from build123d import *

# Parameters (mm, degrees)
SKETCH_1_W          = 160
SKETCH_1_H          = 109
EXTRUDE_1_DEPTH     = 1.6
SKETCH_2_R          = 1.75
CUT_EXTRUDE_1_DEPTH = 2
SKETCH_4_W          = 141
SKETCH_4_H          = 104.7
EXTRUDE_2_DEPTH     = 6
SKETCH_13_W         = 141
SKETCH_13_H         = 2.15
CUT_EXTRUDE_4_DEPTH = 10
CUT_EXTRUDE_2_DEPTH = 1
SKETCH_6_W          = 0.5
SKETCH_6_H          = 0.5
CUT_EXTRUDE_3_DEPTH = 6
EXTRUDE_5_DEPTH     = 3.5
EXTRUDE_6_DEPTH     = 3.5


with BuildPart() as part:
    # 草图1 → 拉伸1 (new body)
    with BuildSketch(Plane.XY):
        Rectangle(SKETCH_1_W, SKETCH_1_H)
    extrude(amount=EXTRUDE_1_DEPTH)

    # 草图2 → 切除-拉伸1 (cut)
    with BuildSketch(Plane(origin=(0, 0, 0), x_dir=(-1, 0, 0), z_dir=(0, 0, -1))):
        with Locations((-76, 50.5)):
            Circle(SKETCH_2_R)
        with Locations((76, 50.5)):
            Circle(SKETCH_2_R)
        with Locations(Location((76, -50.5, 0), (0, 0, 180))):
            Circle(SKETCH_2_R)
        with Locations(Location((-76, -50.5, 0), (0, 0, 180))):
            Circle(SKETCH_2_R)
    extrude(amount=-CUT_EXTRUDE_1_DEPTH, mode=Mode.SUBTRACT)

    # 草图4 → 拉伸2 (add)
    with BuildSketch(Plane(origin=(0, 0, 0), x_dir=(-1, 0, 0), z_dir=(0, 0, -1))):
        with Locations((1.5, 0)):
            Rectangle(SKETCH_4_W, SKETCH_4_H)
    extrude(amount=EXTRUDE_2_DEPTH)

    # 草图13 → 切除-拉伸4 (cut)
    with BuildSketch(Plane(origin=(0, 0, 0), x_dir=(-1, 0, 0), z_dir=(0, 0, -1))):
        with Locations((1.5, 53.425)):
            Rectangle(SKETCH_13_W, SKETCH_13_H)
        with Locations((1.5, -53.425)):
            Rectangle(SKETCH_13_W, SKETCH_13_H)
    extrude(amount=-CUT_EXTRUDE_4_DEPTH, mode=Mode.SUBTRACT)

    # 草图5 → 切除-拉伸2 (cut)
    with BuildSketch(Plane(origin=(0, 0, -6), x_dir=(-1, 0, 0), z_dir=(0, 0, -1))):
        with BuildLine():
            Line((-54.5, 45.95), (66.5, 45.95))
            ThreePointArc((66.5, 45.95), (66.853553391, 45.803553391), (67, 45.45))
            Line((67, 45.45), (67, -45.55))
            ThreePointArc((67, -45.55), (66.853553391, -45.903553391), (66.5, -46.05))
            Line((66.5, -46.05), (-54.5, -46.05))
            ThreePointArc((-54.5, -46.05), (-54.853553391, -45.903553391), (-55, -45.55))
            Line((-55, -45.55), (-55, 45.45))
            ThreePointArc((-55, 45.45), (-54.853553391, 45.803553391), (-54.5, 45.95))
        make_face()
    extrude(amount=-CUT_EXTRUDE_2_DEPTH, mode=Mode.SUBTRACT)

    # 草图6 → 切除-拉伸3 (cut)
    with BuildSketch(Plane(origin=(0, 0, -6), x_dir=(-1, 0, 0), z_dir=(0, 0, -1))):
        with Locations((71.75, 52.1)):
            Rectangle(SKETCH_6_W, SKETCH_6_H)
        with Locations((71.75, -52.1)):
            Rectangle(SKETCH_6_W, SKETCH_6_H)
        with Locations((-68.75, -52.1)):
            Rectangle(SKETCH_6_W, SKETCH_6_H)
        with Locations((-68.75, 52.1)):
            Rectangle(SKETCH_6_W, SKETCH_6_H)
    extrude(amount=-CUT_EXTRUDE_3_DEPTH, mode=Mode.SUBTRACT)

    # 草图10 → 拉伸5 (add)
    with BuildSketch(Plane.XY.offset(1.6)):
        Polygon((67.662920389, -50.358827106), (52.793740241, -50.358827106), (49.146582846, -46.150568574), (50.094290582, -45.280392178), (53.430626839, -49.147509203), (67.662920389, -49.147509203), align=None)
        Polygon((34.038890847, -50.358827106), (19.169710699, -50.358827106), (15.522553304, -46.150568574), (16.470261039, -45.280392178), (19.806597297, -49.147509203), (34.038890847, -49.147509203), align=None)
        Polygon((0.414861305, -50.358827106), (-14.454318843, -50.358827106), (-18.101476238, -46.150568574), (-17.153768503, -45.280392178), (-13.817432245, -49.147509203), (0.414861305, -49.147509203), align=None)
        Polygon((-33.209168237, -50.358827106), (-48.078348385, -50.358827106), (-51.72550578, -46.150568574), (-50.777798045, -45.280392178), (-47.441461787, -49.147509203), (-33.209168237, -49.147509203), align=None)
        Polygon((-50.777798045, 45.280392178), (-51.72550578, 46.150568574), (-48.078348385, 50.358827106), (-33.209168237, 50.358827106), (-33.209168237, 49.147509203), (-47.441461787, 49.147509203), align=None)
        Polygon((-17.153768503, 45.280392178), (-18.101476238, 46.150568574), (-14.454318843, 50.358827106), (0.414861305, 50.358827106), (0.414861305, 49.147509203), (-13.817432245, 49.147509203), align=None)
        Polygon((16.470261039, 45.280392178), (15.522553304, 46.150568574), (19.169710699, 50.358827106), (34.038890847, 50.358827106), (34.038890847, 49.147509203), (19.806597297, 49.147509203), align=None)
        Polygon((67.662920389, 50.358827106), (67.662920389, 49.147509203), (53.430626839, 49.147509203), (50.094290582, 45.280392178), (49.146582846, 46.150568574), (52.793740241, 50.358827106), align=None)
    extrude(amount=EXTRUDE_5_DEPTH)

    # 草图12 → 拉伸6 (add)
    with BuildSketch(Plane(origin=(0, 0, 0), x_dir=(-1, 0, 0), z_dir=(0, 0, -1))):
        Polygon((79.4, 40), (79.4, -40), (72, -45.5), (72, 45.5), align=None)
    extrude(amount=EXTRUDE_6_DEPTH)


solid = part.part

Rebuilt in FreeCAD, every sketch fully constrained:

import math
import FreeCAD as App
import Part
import Sketcher

V = App.Vector


def add_polygon(sketch, points):
    """Adds a closed chain of lines whose ends are joined by coincident constraints."""
    first, n = sketch.GeometryCount, len(points)
    for a, b in zip(points, points[1:] + points[:1]):
        sketch.addGeometry(Part.LineSegment(App.Vector(*a, 0), App.Vector(*b, 0)), False)
    for i in range(n):
        sketch.addConstraint(Sketcher.Constraint("Coincident", first + i, 2, first + (i + 1) % n, 1))

doc = App.newDocument("Part")
body = doc.addObject("PartDesign::Body", "Body")

# Sketch on XY plane
sketch1 = body.newObject("Sketcher::SketchObject", "Sketch")
sketch1.AttachmentSupport = (doc.getObject("XY_Plane"), [""])
sketch1.MapMode = "FlatFace"
add_polygon(sketch1, [(-80, 54), (-80, -54), (80, -54), (80, 54)])  # lines 0-3
sketch1.addConstraint(Sketcher.Constraint("Vertical", 0))
sketch1.addConstraint(Sketcher.Constraint("Horizontal", 1))
sketch1.addConstraint(Sketcher.Constraint("Vertical", 2))
sketch1.addConstraint(Sketcher.Constraint("Horizontal", 3))
sketch1.addConstraint(Sketcher.Constraint("Symmetric", 0, 2, 2, 2, -1, 1))
sketch1.addConstraint(Sketcher.Constraint("DistanceX", 1, 1, 1, 2, 160.0))
sketch1.addConstraint(Sketcher.Constraint("DistanceY", 0, 2, 0, 1, 109.0))
pad1 = body.newObject("PartDesign::Pad", "Pad")
pad1.Profile = sketch1
pad1.Length = 1.6

# Sketch on XY plane
sketch2 = body.newObject("Sketcher::SketchObject", "Sketch001")
sketch2.AttachmentSupport = (doc.getObject("XY_Plane"), [""])
sketch2.MapMode = "FlatFace"
sketch2.addGeometry(Part.Circle(V(76, 50.5, 0), V(0, 0, 1), 1.8), False)
sketch2.addGeometry(Part.Circle(V(-76, 50.5, 0), V(0, 0, 1), 1.8), False)
sketch2.addGeometry(Part.Circle(V(-76, -50.5, 0), V(0, 0, 1), 1.8), False)
sketch2.addGeometry(Part.Circle(V(76, -50.5, 0), V(0, 0, 1), 1.8), False)
sketch2.addConstraint(Sketcher.Constraint("Equal", 0, 1))
sketch2.addConstraint(Sketcher.Constraint("Equal", 1, 2))
sketch2.addConstraint(Sketcher.Constraint("Equal", 2, 3))
sketch2.addConstraint(Sketcher.Constraint("Symmetric", 0, 3, 2, 3, -1, 1))
sketch2.addConstraint(Sketcher.Constraint("Symmetric", 1, 3, 3, 3, -1, 1))
sketch2.addConstraint(Sketcher.Constraint("Symmetric", 0, 3, 1, 3, -2))
sketch2.addConstraint(Sketcher.Constraint("Diameter", 0, 3.5))
sketch2.addConstraint(Sketcher.Constraint("DistanceX", -1, 1, 0, 3, 76.0))
sketch2.addConstraint(Sketcher.Constraint("DistanceY", 2, 3, 1, 3, 101.0))
pocket1 = body.newObject("PartDesign::Pocket", "Pocket")
pocket1.Profile = sketch2
pocket1.Length = 2
pocket1.Reversed = True

# Sketch on XY plane
sketch3 = body.newObject("Sketcher::SketchObject", "Sketch002")
sketch3.AttachmentSupport = (doc.getObject("XY_Plane"), [""])
sketch3.MapMode = "FlatFace"
add_polygon(sketch3, [(69, 52), (69, -52), (-72, -52), (-72, 52)])  # lines 0-3
sketch3.addConstraint(Sketcher.Constraint("Vertical", 0))
sketch3.addConstraint(Sketcher.Constraint("Horizontal", 1))
sketch3.addConstraint(Sketcher.Constraint("Vertical", 2))
sketch3.addConstraint(Sketcher.Constraint("Horizontal", 3))
sketch3.addConstraint(Sketcher.Constraint("DistanceX", 1, 2, 1, 1, 141.0))
sketch3.addConstraint(Sketcher.Constraint("DistanceY", 0, 2, 0, 1, 104.7))
sketch3.addConstraint(Sketcher.Constraint("DistanceX", -1, 1, 0, 2, 69.0))
sketch3.addConstraint(Sketcher.Constraint("DistanceY", 0, 2, -1, 1, 52.35))
pad2 = body.newObject("PartDesign::Pad", "Pad001")
pad2.Profile = sketch3
pad2.Length = 6
pad2.Reversed = True

# Sketch on XY plane
sketch4 = body.newObject("Sketcher::SketchObject", "Sketch003")
sketch4.AttachmentSupport = (doc.getObject("XY_Plane"), [""])
sketch4.MapMode = "FlatFace"
add_polygon(sketch4, [(69, 54.5), (69, 52.4), (-72, 52.4), (-72, 54.5)])  # lines 0-3
add_polygon(sketch4, [(69, -52.4), (69, -54.5), (-72, -54.5), (-72, -52.4)])  # lines 4-7
sketch4.addConstraint(Sketcher.Constraint("Vertical", 0))
sketch4.addConstraint(Sketcher.Constraint("Horizontal", 1))
sketch4.addConstraint(Sketcher.Constraint("Vertical", 2))
sketch4.addConstraint(Sketcher.Constraint("Horizontal", 3))
sketch4.addConstraint(Sketcher.Constraint("Vertical", 4))
sketch4.addConstraint(Sketcher.Constraint("Horizontal", 5))
sketch4.addConstraint(Sketcher.Constraint("Vertical", 6))
sketch4.addConstraint(Sketcher.Constraint("Horizontal", 7))
sketch4.addConstraint(Sketcher.Constraint("Symmetric", 3, 2, 4, 2, -1))
sketch4.addConstraint(Sketcher.Constraint("Symmetric", 1, 2, 6, 2, -1))
sketch4.addConstraint(Sketcher.Constraint("DistanceX", 1, 2, 1, 1, 141.0))
sketch4.addConstraint(Sketcher.Constraint("DistanceX", -1, 1, 0, 2, 69.0))
sketch4.addConstraint(Sketcher.Constraint("DistanceY", 4, 2, 3, 2, 109.0))
sketch4.addConstraint(Sketcher.Constraint("DistanceY", 0, 2, 0, 1, 2.15))
pocket2 = body.newObject("PartDesign::Pocket", "Pocket001")
pocket2.Profile = sketch4
pocket2.Length = 10
pocket2.Reversed = True

# Sketch on XY plane
sketch5 = body.newObject("Sketcher::SketchObject", "Sketch004")
sketch5.AttachmentSupport = (doc.getObject("XY_Plane"), [""])
sketch5.MapMode = "FlatFace"
sketch5.AttachmentOffset = App.Placement(V(0, 0, -6), App.Rotation())
sketch5.addGeometry(Part.LineSegment(V(-66.5, 45.95, 0), V(54.5, 45.95, 0)), False)
sketch5.addGeometry(Part.ArcOfCircle(Part.Circle(V(54.5, 45.45, 0), V(0, 0, 1), 0.5), math.radians(0), math.radians(90)), False)
sketch5.addGeometry(Part.LineSegment(V(55, 45.45, 0), V(55, -45.55, 0)), False)
sketch5.addGeometry(Part.ArcOfCircle(Part.Circle(V(54.5, -45.55, 0), V(0, 0, 1), 0.5), math.radians(-90), math.radians(0)), False)
sketch5.addGeometry(Part.LineSegment(V(54.5, -46.05, 0), V(-66.5, -46.05, 0)), False)
sketch5.addGeometry(Part.ArcOfCircle(Part.Circle(V(-66.5, -45.55, 0), V(0, 0, 1), 0.5), math.radians(180), math.radians(270)), False)
sketch5.addGeometry(Part.LineSegment(V(-67, -45.55, 0), V(-67, 45.45, 0)), False)
sketch5.addGeometry(Part.ArcOfCircle(Part.Circle(V(-66.5, 45.45, 0), V(0, 0, 1), 0.5), math.radians(90), math.radians(180)), False)
sketch5.addConstraint(Sketcher.Constraint("Tangent", 0, 2, 1, 2))
sketch5.addConstraint(Sketcher.Constraint("Tangent", 1, 1, 2, 1))
sketch5.addConstraint(Sketcher.Constraint("Tangent", 2, 2, 3, 2))
sketch5.addConstraint(Sketcher.Constraint("Tangent", 3, 1, 4, 1))
sketch5.addConstraint(Sketcher.Constraint("Tangent", 4, 2, 5, 2))
sketch5.addConstraint(Sketcher.Constraint("Tangent", 5, 1, 6, 1))
sketch5.addConstraint(Sketcher.Constraint("Tangent", 6, 2, 7, 2))
sketch5.addConstraint(Sketcher.Constraint("Tangent", 7, 1, 0, 1))
sketch5.addConstraint(Sketcher.Constraint("Horizontal", 0))
sketch5.addConstraint(Sketcher.Constraint("Vertical", 2))
sketch5.addConstraint(Sketcher.Constraint("Horizontal", 4))
sketch5.addConstraint(Sketcher.Constraint("Vertical", 6))
sketch5.addConstraint(Sketcher.Constraint("Equal", 1, 3))
sketch5.addConstraint(Sketcher.Constraint("Equal", 3, 5))
sketch5.addConstraint(Sketcher.Constraint("Equal", 5, 7))
sketch5.addConstraint(Sketcher.Constraint("Radius", 1, 0.5))
sketch5.addConstraint(Sketcher.Constraint("DistanceX", 0, 1, 0, 2, 121.0))
sketch5.addConstraint(Sketcher.Constraint("DistanceY", 2, 2, 2, 1, 91.0))
sketch5.addConstraint(Sketcher.Constraint("DistanceX", -1, 1, 1, 1, 55.0))
sketch5.addConstraint(Sketcher.Constraint("DistanceY", -1, 1, 1, 3, 45.45))
pocket3 = body.newObject("PartDesign::Pocket", "Pocket002")
pocket3.Profile = sketch5
pocket3.Length = 1
pocket3.Reversed = True

# Sketch on XY plane
sketch6 = body.newObject("Sketcher::SketchObject", "Sketch005")
sketch6.AttachmentSupport = (doc.getObject("XY_Plane"), [""])
sketch6.MapMode = "FlatFace"
sketch6.AttachmentOffset = App.Placement(V(0, 0, -6), App.Rotation())
add_polygon(sketch6, [(-71.5, 52.4), (-71.5, 51.9), (-72, 51.9), (-72, 52.4)])  # lines 0-3
add_polygon(sketch6, [(-71.5, -51.9), (-71.5, -52.4), (-72, -52.4), (-72, -51.9)])  # lines 4-7
add_polygon(sketch6, [(69, -51.9), (69, -52.4), (68.5, -52.4), (68.5, -51.9)])  # lines 8-11
add_polygon(sketch6, [(69, 52.4), (69, 51.9), (68.5, 51.9), (68.5, 52.4)])  # lines 12-15
sketch6.addConstraint(Sketcher.Constraint("Vertical", 0))
sketch6.addConstraint(Sketcher.Constraint("Horizontal", 1))
sketch6.addConstraint(Sketcher.Constraint("Vertical", 2))
sketch6.addConstraint(Sketcher.Constraint("Horizontal", 3))
sketch6.addConstraint(Sketcher.Constraint("Vertical", 4))
sketch6.addConstraint(Sketcher.Constraint("Horizontal", 5))
sketch6.addConstraint(Sketcher.Constraint("Vertical", 6))
sketch6.addConstraint(Sketcher.Constraint("Horizontal", 7))
sketch6.addConstraint(Sketcher.Constraint("Vertical", 8))
sketch6.addConstraint(Sketcher.Constraint("Horizontal", 9))
sketch6.addConstraint(Sketcher.Constraint("Vertical", 10))
sketch6.addConstraint(Sketcher.Constraint("Horizontal", 11))
sketch6.addConstraint(Sketcher.Constraint("Vertical", 12))
sketch6.addConstraint(Sketcher.Constraint("Horizontal", 13))
sketch6.addConstraint(Sketcher.Constraint("Vertical", 14))
sketch6.addConstraint(Sketcher.Constraint("Horizontal", 15))
sketch6.addConstraint(Sketcher.Constraint("Symmetric", 3, 2, 4, 2, -1))
sketch6.addConstraint(Sketcher.Constraint("Symmetric", 1, 2, 6, 2, -1))
sketch6.addConstraint(Sketcher.Constraint("Symmetric", 11, 2, 12, 2, -1))
sketch6.addConstraint(Sketcher.Constraint("Symmetric", 9, 2, 14, 2, -1))
sketch6.addConstraint(Sketcher.Constraint("Horizontal", 5, 2, 8, 2))
sketch6.addConstraint(Sketcher.Constraint("Horizontal", 7, 2, 10, 2))
sketch6.addConstraint(Sketcher.Constraint("Equal", 7, 9))
sketch6.addConstraint(Sketcher.Constraint("Equal", 15, 0))
sketch6.addConstraint(Sketcher.Constraint("DistanceX", 1, 2, 1, 1, 0.5))
sketch6.addConstraint(Sketcher.Constraint("DistanceX", 1, 2, -1, 1, 72.0))
sketch6.addConstraint(Sketcher.Constraint("DistanceX", -1, 1, 8, 2, 69.0))
sketch6.addConstraint(Sketcher.Constraint("DistanceY", 4, 2, 0, 2, 104.2))
pocket4 = body.newObject("PartDesign::Pocket", "Pocket003")
pocket4.Profile = sketch6
pocket4.Length = 6
pocket4.Reversed = True

# Sketch on XY plane
sketch7 = body.newObject("Sketcher::SketchObject", "Sketch006")
sketch7.AttachmentSupport = (doc.getObject("XY_Plane"), [""])
sketch7.MapMode = "FlatFace"
sketch7.AttachmentOffset = App.Placement(V(0, 0, 1.6), App.Rotation())
add_polygon(sketch7, [(52.8, -50.4), (67.7, -50.4), (67.7, -49.1), (53.4, -49.1), (50.1, -45.3), (49.1, -46.2)])  # lines 0-5
add_polygon(sketch7, [(19.2, -50.4), (34, -50.4), (34, -49.1), (19.8, -49.1), (16.5, -45.3), (15.5, -46.2)])  # lines 6-11
add_polygon(sketch7, [(-14.5, -50.4), (0.4, -50.4), (0.4, -49.1), (-13.8, -49.1), (-17.2, -45.3), (-18.1, -46.2)])  # lines 12-17
add_polygon(sketch7, [(-48.1, -50.4), (-33.2, -50.4), (-33.2, -49.1), (-47.4, -49.1), (-50.8, -45.3), (-51.7, -46.2)])  # lines 18-23
add_polygon(sketch7, [(-51.7, 46.2), (-50.8, 45.3), (-47.4, 49.1), (-33.2, 49.1), (-33.2, 50.4), (-48.1, 50.4)])  # lines 24-29
add_polygon(sketch7, [(-18.1, 46.2), (-17.2, 45.3), (-13.8, 49.1), (0.4, 49.1), (0.4, 50.4), (-14.5, 50.4)])  # lines 30-35
add_polygon(sketch7, [(15.5, 46.2), (16.5, 45.3), (19.8, 49.1), (34, 49.1), (34, 50.4), (19.2, 50.4)])  # lines 36-41
add_polygon(sketch7, [(67.7, 49.1), (67.7, 50.4), (52.8, 50.4), (49.1, 46.2), (50.1, 45.3), (53.4, 49.1)])  # lines 42-47
sketch7.addConstraint(Sketcher.Constraint("Horizontal", 0))
sketch7.addConstraint(Sketcher.Constraint("Vertical", 1))
sketch7.addConstraint(Sketcher.Constraint("Horizontal", 2))
sketch7.addConstraint(Sketcher.Constraint("Horizontal", 6))
sketch7.addConstraint(Sketcher.Constraint("Vertical", 7))
sketch7.addConstraint(Sketcher.Constraint("Horizontal", 8))
sketch7.addConstraint(Sketcher.Constraint("Horizontal", 12))
sketch7.addConstraint(Sketcher.Constraint("Vertical", 13))
sketch7.addConstraint(Sketcher.Constraint("Horizontal", 14))
sketch7.addConstraint(Sketcher.Constraint("Horizontal", 18))
sketch7.addConstraint(Sketcher.Constraint("Vertical", 19))
sketch7.addConstraint(Sketcher.Constraint("Horizontal", 20))
sketch7.addConstraint(Sketcher.Constraint("Horizontal", 26))
sketch7.addConstraint(Sketcher.Constraint("Vertical", 27))
sketch7.addConstraint(Sketcher.Constraint("Horizontal", 28))
sketch7.addConstraint(Sketcher.Constraint("Horizontal", 32))
sketch7.addConstraint(Sketcher.Constraint("Vertical", 33))
sketch7.addConstraint(Sketcher.Constraint("Horizontal", 34))
sketch7.addConstraint(Sketcher.Constraint("Horizontal", 38))
sketch7.addConstraint(Sketcher.Constraint("Vertical", 39))
sketch7.addConstraint(Sketcher.Constraint("Horizontal", 40))
sketch7.addConstraint(Sketcher.Constraint("Vertical", 42))
sketch7.addConstraint(Sketcher.Constraint("Horizontal", 43))
sketch7.addConstraint(Sketcher.Constraint("Horizontal", 47))
sketch7.addConstraint(Sketcher.Constraint("Symmetric", 21, 2, 24, 2, -1))
sketch7.addConstraint(Sketcher.Constraint("Symmetric", 20, 2, 25, 2, -1))
sketch7.addConstraint(Sketcher.Constraint("Symmetric", 18, 2, 27, 2, -1))
sketch7.addConstraint(Sketcher.Constraint("Symmetric", 22, 2, 29, 2, -1))
sketch7.addConstraint(Sketcher.Constraint("Symmetric", 15, 2, 30, 2, -1))
sketch7.addConstraint(Sketcher.Constraint("Symmetric", 14, 2, 31, 2, -1))
sketch7.addConstraint(Sketcher.Constraint("Symmetric", 12, 2, 33, 2, -1))
sketch7.addConstraint(Sketcher.Constraint("Symmetric", 16, 2, 35, 2, -1))
sketch7.addConstraint(Sketcher.Constraint("Symmetric", 9, 2, 36, 2, -1))
sketch7.addConstraint(Sketcher.Constraint("Symmetric", 8, 2, 37, 2, -1))
sketch7.addConstraint(Sketcher.Constraint("Symmetric", 6, 2, 39, 2, -1))
sketch7.addConstraint(Sketcher.Constraint("Symmetric", 10, 2, 41, 2, -1))
sketch7.addConstraint(Sketcher.Constraint("Symmetric", 0, 2, 42, 2, -1))
sketch7.addConstraint(Sketcher.Constraint("Symmetric", 4, 2, 44, 2, -1))
sketch7.addConstraint(Sketcher.Constraint("Symmetric", 3, 2, 45, 2, -1))
sketch7.addConstraint(Sketcher.Constraint("Symmetric", 2, 2, 46, 2, -1))
sketch7.addConstraint(Sketcher.Constraint("Parallel", 3, 9))
sketch7.addConstraint(Sketcher.Constraint("Parallel", 4, 10))
sketch7.addConstraint(Sketcher.Constraint("Parallel", 5, 11))
sketch7.addConstraint(Sketcher.Constraint("Parallel", 9, 15))
sketch7.addConstraint(Sketcher.Constraint("Parallel", 10, 16))
sketch7.addConstraint(Sketcher.Constraint("Parallel", 11, 17))
sketch7.addConstraint(Sketcher.Constraint("Parallel", 15, 21))
sketch7.addConstraint(Sketcher.Constraint("Parallel", 16, 22))
sketch7.addConstraint(Sketcher.Constraint("Parallel", 17, 23))
sketch7.addConstraint(Sketcher.Constraint("Parallel", 29, 35))
sketch7.addConstraint(Sketcher.Constraint("Parallel", 35, 41))
sketch7.addConstraint(Sketcher.Constraint("Parallel", 41, 44))
sketch7.addConstraint(Sketcher.Constraint("Horizontal", 5, 2, 6, 2))
sketch7.addConstraint(Sketcher.Constraint("Horizontal", 2, 2, 7, 2))
sketch7.addConstraint(Sketcher.Constraint("Horizontal", 3, 2, 9, 2))
sketch7.addConstraint(Sketcher.Constraint("Horizontal", 4, 2, 10, 2))
sketch7.addConstraint(Sketcher.Constraint("Horizontal", 11, 2, 12, 2))
sketch7.addConstraint(Sketcher.Constraint("Horizontal", 8, 2, 13, 2))
sketch7.addConstraint(Sketcher.Constraint("Horizontal", 9, 2, 15, 2))
sketch7.addConstraint(Sketcher.Constraint("Horizontal", 10, 2, 16, 2))
sketch7.addConstraint(Sketcher.Constraint("Horizontal", 17, 2, 18, 2))
sketch7.addConstraint(Sketcher.Constraint("Horizontal", 14, 2, 19, 2))
sketch7.addConstraint(Sketcher.Constraint("Horizontal", 15, 2, 21, 2))
sketch7.addConstraint(Sketcher.Constraint("Horizontal", 16, 2, 22, 2))
sketch7.addConstraint(Sketcher.Constraint("Vertical", 23, 2, 28, 2))
sketch7.addConstraint(Sketcher.Constraint("Equal", 0, 6))
sketch7.addConstraint(Sketcher.Constraint("Equal", 6, 12))
sketch7.addConstraint(Sketcher.Constraint("Equal", 12, 18))
sketch7.addConstraint(Sketcher.Constraint("DistanceX", 0, 1, 0, 2, 14.86918))
sketch7.addConstraint(Sketcher.Constraint("DistanceX", 21, 2, -1, 1, 50.777798))
sketch7.addConstraint(Sketcher.Constraint("DistanceX", 6, 2, 3, 2, 16.0554))
sketch7.addConstraint(Sketcher.Constraint("DistanceX", 12, 2, 9, 2, 16.0554))
sketch7.addConstraint(Sketcher.Constraint("DistanceX", 18, 2, 15, 2, 16.0554))
sketch7.addConstraint(Sketcher.Constraint("DistanceY", 20, 2, 24, 2, 94.427901))
sketch7.addConstraint(Sketcher.Constraint("Distance", 3, 5.107419))
sketch7.addConstraint(Sketcher.Constraint("Distance", 5, 5.56877))
sketch7.addConstraint(Sketcher.Constraint("DistanceX", 2, 2, 2, 1, 14.232294))
sketch7.addConstraint(Sketcher.Constraint("DistanceY", 1, 1, 1, 2, 1.211318))
sketch7.addConstraint(Sketcher.Constraint("DistanceX", -1, 1, 0, 2, 67.66292))
sketch7.addConstraint(Sketcher.Constraint("DistanceY", 4, 2, -1, 1, 46.150569))
pad3 = body.newObject("PartDesign::Pad", "Pad002")
pad3.Profile = sketch7
pad3.Length = 3.5

# Sketch on XY plane
sketch8 = body.newObject("Sketcher::SketchObject", "Sketch007")
sketch8.AttachmentSupport = (doc.getObject("XY_Plane"), [""])
sketch8.MapMode = "FlatFace"
add_polygon(sketch8, [(-79, -40), (-79, 40), (-72, 46), (-72, -46)])  # lines 0-3
sketch8.addConstraint(Sketcher.Constraint("Vertical", 0))
sketch8.addConstraint(Sketcher.Constraint("Vertical", 2))
sketch8.addConstraint(Sketcher.Constraint("Equal", 1, 3))
sketch8.addConstraint(Sketcher.Constraint("DistanceY", 0, 1, 0, 2, 80.0))
sketch8.addConstraint(Sketcher.Constraint("DistanceY", 2, 2, 2, 1, 91.0))
sketch8.addConstraint(Sketcher.Constraint("DistanceY", -1, 1, 0, 2, 40.0))
sketch8.addConstraint(Sketcher.Constraint("DistanceX", 1, 2, -1, 1, 72.0))
sketch8.addConstraint(Sketcher.Constraint("DistanceX", 0, 2, -1, 1, 79.4))
pad4 = body.newObject("PartDesign::Pad", "Pad003")
pad4.Profile = sketch8
pad4.Length = 3.5
pad4.Reversed = True

doc.recompute()
